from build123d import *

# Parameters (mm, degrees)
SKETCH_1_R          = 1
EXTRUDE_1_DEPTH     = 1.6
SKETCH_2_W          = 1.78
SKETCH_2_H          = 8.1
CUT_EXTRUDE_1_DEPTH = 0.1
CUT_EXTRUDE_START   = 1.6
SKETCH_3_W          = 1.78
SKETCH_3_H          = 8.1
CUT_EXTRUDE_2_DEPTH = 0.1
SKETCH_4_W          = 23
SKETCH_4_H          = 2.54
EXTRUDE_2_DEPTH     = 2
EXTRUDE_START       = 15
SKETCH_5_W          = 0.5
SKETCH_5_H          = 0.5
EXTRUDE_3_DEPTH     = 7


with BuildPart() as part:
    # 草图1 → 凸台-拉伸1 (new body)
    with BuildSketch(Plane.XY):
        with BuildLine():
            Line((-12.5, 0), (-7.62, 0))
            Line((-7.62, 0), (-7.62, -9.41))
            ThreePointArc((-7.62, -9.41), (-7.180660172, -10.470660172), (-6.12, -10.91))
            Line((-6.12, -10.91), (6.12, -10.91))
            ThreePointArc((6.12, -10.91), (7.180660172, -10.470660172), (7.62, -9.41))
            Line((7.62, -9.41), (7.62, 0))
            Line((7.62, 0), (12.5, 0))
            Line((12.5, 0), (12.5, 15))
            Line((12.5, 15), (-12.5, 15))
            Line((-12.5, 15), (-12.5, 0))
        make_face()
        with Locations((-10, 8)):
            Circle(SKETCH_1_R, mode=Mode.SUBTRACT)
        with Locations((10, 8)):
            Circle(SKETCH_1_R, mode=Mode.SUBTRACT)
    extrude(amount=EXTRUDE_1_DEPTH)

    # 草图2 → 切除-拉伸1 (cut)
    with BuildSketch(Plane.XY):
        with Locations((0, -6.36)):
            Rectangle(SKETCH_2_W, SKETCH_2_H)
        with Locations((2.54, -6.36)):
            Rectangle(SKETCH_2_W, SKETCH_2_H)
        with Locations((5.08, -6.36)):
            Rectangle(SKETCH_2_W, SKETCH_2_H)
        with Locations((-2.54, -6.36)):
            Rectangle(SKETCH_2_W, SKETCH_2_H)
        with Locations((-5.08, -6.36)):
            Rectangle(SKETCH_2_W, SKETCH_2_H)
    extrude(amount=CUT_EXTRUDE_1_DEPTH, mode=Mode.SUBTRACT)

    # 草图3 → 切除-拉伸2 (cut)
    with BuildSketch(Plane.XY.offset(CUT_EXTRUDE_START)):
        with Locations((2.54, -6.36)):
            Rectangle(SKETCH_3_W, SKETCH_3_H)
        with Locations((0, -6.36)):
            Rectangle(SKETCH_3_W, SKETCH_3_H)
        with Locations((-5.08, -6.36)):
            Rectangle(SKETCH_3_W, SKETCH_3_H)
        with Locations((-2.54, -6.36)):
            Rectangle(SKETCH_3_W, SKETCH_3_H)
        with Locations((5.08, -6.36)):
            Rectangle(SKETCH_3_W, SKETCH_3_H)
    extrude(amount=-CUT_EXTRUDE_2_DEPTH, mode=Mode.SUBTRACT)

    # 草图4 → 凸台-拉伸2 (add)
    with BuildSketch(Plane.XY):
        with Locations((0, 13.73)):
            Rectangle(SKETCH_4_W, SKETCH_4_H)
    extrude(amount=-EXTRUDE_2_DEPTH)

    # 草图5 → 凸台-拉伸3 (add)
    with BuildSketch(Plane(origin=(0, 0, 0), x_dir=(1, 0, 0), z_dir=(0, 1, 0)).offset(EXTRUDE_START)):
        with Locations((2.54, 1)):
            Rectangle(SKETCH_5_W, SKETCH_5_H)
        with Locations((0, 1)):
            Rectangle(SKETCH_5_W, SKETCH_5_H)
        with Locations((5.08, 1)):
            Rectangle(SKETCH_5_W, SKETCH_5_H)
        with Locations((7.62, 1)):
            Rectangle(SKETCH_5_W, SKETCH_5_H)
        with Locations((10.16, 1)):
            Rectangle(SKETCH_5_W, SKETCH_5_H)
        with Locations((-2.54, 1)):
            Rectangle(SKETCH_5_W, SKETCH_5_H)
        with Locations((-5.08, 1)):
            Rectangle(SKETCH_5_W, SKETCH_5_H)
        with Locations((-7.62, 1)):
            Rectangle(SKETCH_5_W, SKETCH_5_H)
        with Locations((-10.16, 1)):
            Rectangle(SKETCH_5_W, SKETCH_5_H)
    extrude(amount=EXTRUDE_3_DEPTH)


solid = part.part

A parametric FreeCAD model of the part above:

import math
import FreeCAD as App
import Part
import Sketcher
from FreeCAD import Vector


def add_polygon(sketch, points):
    """Adds a closed chain of lines whose ends are joined by coincident constraints."""
    first, n = sketch.GeometryCount, len(points)
    for a, b in zip(points, points[1:] + points[:1]):
        sketch.addGeometry(Part.LineSegment(App.Vector(*a, 0), App.Vector(*b, 0)), False)
    for i in range(n):
        sketch.addConstraint(Sketcher.Constraint("Coincident", first + i, 2, first + (i + 1) % n, 1))

doc = App.newDocument("Part")
body = doc.addObject("PartDesign::Body", "Body")

# Sketch on XY plane
sketch1 = doc.addObject("Sketcher::SketchObject", "Sketch")
body.addObject(sketch1)
sketch1.AttachmentSupport = (doc.XY_Plane, [""])
sketch1.MapMode = "FlatFace"
sketch1.addGeometry([
    Part.LineSegment(Vector(-12.5, 0, 0), Vector(-7.6, 0, 0)),  # 0
    Part.LineSegment(Vector(-7.6, 0, 0), Vector(-7.6, -9.4, 0)),  # 1
    Part.ArcOfCircle(Part.Circle(Vector(-6.1, -9.4, 0), Vector(0, 0, 1), 1.5), math.radians(180), math.radians(270)),  # 2
    Part.LineSegment(Vector(-6.1, -10.9, 0), Vector(6.1, -10.9, 0)),  # 3
    Part.ArcOfCircle(Part.Circle(Vector(6.1, -9.4, 0), Vector(0, 0, 1), 1.5), math.radians(-90), math.radians(0)),  # 4
    Part.LineSegment(Vector(7.6, -9.4, 0), Vector(7.6, 0, 0)),  # 5
    Part.LineSegment(Vector(7.6, 0, 0), Vector(12.5, 0, 0)),  # 6
    Part.LineSegment(Vector(12.5, 0, 0), Vector(12.5, 15, 0)),  # 7
    Part.LineSegment(Vector(12.5, 15, 0), Vector(-12.5, 15, 0)),  # 8
    Part.LineSegment(Vector(-12.5, 15, 0), Vector(-12.5, 0, 0)),  # 9
    Part.Circle(Vector(-10, 8, 0), Vector(0, 0, 1), 1),  # 10
    Part.Circle(Vector(10, 8, 0), Vector(0, 0, 1), 1),  # 11
], False)
sketch1.addConstraint([
    Sketcher.Constraint("Coincident", 0, 2, 1, 1),
    Sketcher.Constraint("Tangent", 1, 2, 2, 1),
    Sketcher.Constraint("Tangent", 2, 2, 3, 1),
    Sketcher.Constraint("Tangent", 3, 2, 4, 1),
    Sketcher.Constraint("Tangent", 4, 2, 5, 1),
    Sketcher.Constraint("Coincident", 5, 2, 6, 1),
    Sketcher.Constraint("Coincident", 6, 2, 7, 1),
    Sketcher.Constraint("Coincident", 7, 2, 8, 1),
    Sketcher.Constraint("Coincident", 8, 2, 9, 1),
    Sketcher.Constraint("Coincident", 9, 2, 0, 1),
    Sketcher.Constraint("Horizontal", 0),
    Sketcher.Constraint("Vertical", 1),
    Sketcher.Constraint("Horizontal", 3),
    Sketcher.Constraint("Vertical", 5),
    Sketcher.Constraint("Horizontal", 6),
    Sketcher.Constraint("Vertical", 7),
    Sketcher.Constraint("Horizontal", 8),
    Sketcher.Constraint("Vertical", 9),
    Sketcher.Constraint("Equal", 2, 4),
    Sketcher.Constraint("Equal", 10, 11),
    Sketcher.Constraint("Symmetric", 0, 2, 5, 2, -1, 1),
    Sketcher.Constraint("Symmetric", 10, 3, 11, 3, -2),
    Sketcher.Constraint("Symmetric", 6, 2, 9, 2, -2),
    Sketcher.Constraint("Diameter", 10, 2.0),
    Sketcher.Constraint("Radius", 2, 1.5),
    Sketcher.Constraint("DistanceX", 8, 2, 8, 1, 25.0),
    Sketcher.Constraint("DistanceY", 7, 1, 7, 2, 15.0),
    Sketcher.Constraint("DistanceX", 10, 3, -1, 1, 10.0),
    Sketcher.Constraint("DistanceY", -1, 1, 10, 3, 8.0),
    Sketcher.Constraint("DistanceX", 0, 1, 0, 2, 4.88),
    Sketcher.Constraint("DistanceY", 1, 2, 1, 1, 9.41),
])
pad1 = doc.addObject("PartDesign::Pad", "Pad")
body.addObject(pad1)
pad1.Profile = sketch1
pad1.Length = 1.6

# Sketch on XY plane
sketch2 = doc.addObject("Sketcher::SketchObject", "Sketch001")
body.addObject(sketch2)
sketch2.AttachmentSupport = (doc.XY_Plane, [""])
sketch2.MapMode = "FlatFace"
add_polygon(sketch2, [(-0.9, -2.3), (-0.9, -10.4), (0.9, -10.4), (0.9, -2.3)])  # lines 0-3
add_polygon(sketch2, [(1.6, -2.3), (1.6, -10.4), (3.4, -10.4), (3.4, -2.3)])  # lines 4-7
add_polygon(sketch2, [(4.2, -2.3), (4.2, -10.4), (6, -10.4), (6, -2.3)])  # lines 8-11
add_polygon(sketch2, [(-3.4, -2.3), (-3.4, -10.4), (-1.6, -10.4), (-1.6, -2.3)])  # lines 12-15
add_polygon(sketch2, [(-6, -2.3), (-6, -10.4), (-4.2, -10.4), (-4.2, -2.3)])  # lines 16-19
sketch2.addConstraint([
    Sketcher.Constraint("Vertical", 0),
    Sketcher.Constraint("Horizontal", 1),
    Sketcher.Constraint("Vertical", 2),
    Sketcher.Constraint("Horizontal", 3),
    Sketcher.Constraint("Vertical", 4),
    Sketcher.Constraint("Horizontal", 5),
    Sketcher.Constraint("Vertical", 6),
    Sketcher.Constraint("Horizontal", 7),
    Sketcher.Constraint("Vertical", 8),
    Sketcher.Constraint("Horizontal", 9),
    Sketcher.Constraint("Vertical", 10),
    Sketcher.Constraint("Horizontal", 11),
    Sketcher.Constraint("Vertical", 12),
    Sketcher.Constraint("Horizontal", 13),
    Sketcher.Constraint("Vertical", 14),
    Sketcher.Constraint("Horizontal", 15),
    Sketcher.Constraint("Vertical", 16),
    Sketcher.Constraint("Horizontal", 17),
    Sketcher.Constraint("Vertical", 18),
    Sketcher.Constraint("Horizontal", 19),
    Sketcher.Constraint("Symmetric", 5, 2, 12, 2, -2),
    Sketcher.Constraint("Symmetric", 7, 2, 14, 2, -2),
    Sketcher.Constraint("Symmetric", 9, 2, 16, 2, -2),
    Sketcher.Constraint("Symmetric", 11, 2, 18, 2, -2),
    Sketcher.Constraint("Horizontal", 1, 2, 4, 2),
    Sketcher.Constraint("Horizontal", 3, 2, 6, 2),
    Sketcher.Constraint("Horizontal", 5, 2, 8, 2),
    Sketcher.Constraint("Horizontal", 7, 2, 10, 2),
    Sketcher.Constraint("Equal", 3, 5),
    Sketcher.Constraint("Equal", 7, 9),
    Sketcher.Constraint("DistanceY", 0, 2, 0, 1, 8.1),
    Sketcher.Constraint("DistanceX", 1, 1, 1, 2, 1.78),
    Sketcher.Constraint("DistanceX", 1, 2, 8, 2, 3.3),
    Sketcher.Constraint("DistanceX", 13, 2, 4, 2, 3.3),
    Sketcher.Constraint("DistanceX", 17, 2, 0, 2, 3.3),
    Sketcher.Constraint("DistanceY", 0, 2, -1, 1, 10.41),
])
pocket1 = doc.addObject("PartDesign::Pocket", "Pocket")
body.addObject(pocket1)
pocket1.Profile = sketch2
pocket1.Length = 0.1
pocket1.Reversed = True

# Sketch on XY plane
sketch3 = doc.addObject("Sketcher::SketchObject", "Sketch002")
body.addObject(sketch3)
sketch3.AttachmentSupport = (doc.XY_Plane, [""])
sketch3.MapMode = "FlatFace"
sketch3.AttachmentOffset = App.Placement(Vector(0, 0, 1.6), App.Rotation())
add_polygon(sketch3, [(1.6, -2.3), (1.6, -10.4), (3.4, -10.4), (3.4, -2.3)])  # lines 0-3
add_polygon(sketch3, [(-0.9, -2.3), (-0.9, -10.4), (0.9, -10.4), (0.9, -2.3)])  # lines 4-7
add_polygon(sketch3, [(-6, -2.3), (-6, -10.4), (-4.2, -10.4), (-4.2, -2.3)])  # lines 8-11
add_polygon(sketch3, [(-3.4, -2.3), (-3.4, -10.4), (-1.6, -10.4), (-1.6, -2.3)])  # lines 12-15
add_polygon(sketch3, [(4.2, -2.3), (4.2, -10.4), (6, -10.4), (6, -2.3)])  # lines 16-19
sketch3.addConstraint([
    Sketcher.Constraint("Vertical", 0),
    Sketcher.Constraint("Horizontal", 1),
    Sketcher.Constraint("Vertical", 2),
    Sketcher.Constraint("Horizontal", 3),
    Sketcher.Constraint("Vertical", 4),
    Sketcher.Constraint("Horizontal", 5),
    Sketcher.Constraint("Vertical", 6),
    Sketcher.Constraint("Horizontal", 7),
    Sketcher.Constraint("Vertical", 8),
    Sketcher.Constraint("Horizontal", 9),
    Sketcher.Constraint("Vertical", 10),
    Sketcher.Constraint("Horizontal", 11),
    Sketcher.Constraint("Vertical", 12),
    Sketcher.Constraint("Horizontal", 13),
    Sketcher.Constraint("Vertical", 14),
    Sketcher.Constraint("Horizontal", 15),
    Sketcher.Constraint("Vertical", 16),
    Sketcher.Constraint("Horizontal", 17),
    Sketcher.Constraint("Vertical", 18),
    Sketcher.Constraint("Horizontal", 19),
    Sketcher.Constraint("Symmetric", 1, 2, 12, 2, -2),
    Sketcher.Constraint("Symmetric", 3, 2, 14, 2, -2),
    Sketcher.Constraint("Symmetric", 9, 2, 16, 2, -2),
    Sketcher.Constraint("Symmetric", 11, 2, 18, 2, -2),
    Sketcher.Constraint("Horizontal", 1, 2, 4, 2),
    Sketcher.Constraint("Horizontal", 3, 2, 6, 2),
    Sketcher.Constraint("Horizontal", 5, 2, 8, 2),
    Sketcher.Constraint("Horizontal", 7, 2, 10, 2),
    Sketcher.Constraint("Equal", 3, 5),
    Sketcher.Constraint("Equal", 7, 9),
    Sketcher.Constraint("DistanceY", 0, 2, 0, 1, 8.1),
    Sketcher.Constraint("DistanceX", 1, 1, 1, 2, 1.78),
    Sketcher.Constraint("DistanceX", 8, 2, 1, 2, 9.4),
    Sketcher.Constraint("DistanceX", 9, 2, 4, 2, 3.3),
    Sketcher.Constraint("DistanceX", 13, 2, 0, 2, 3.3),
    Sketcher.Constraint("DistanceY", 0, 2, -1, 1, 10.41),
])
pocket2 = doc.addObject("PartDesign::Pocket", "Pocket001")
body.addObject(pocket2)
pocket2.Profile = sketch3
pocket2.Length = 0.1

# Sketch on XY plane
sketch4 = doc.addObject("Sketcher::SketchObject", "Sketch003")
body.addObject(sketch4)
sketch4.AttachmentSupport = (doc.XY_Plane, [""])
sketch4.MapMode = "FlatFace"
add_polygon(sketch4, [(-11.5, 15), (-11.5, 12.5), (11.5, 12.5), (11.5, 15)])  # lines 0-3
sketch4.addConstraint([
    Sketcher.Constraint("Vertical", 0),
    Sketcher.Constraint("Horizontal", 1),
    Sketcher.Constraint("Vertical", 2),
    Sketcher.Constraint("Horizontal", 3),
    Sketcher.Constraint("DistanceX", 1, 1, 1, 2, 23.0),
    Sketcher.Constraint("DistanceY", -1, 1, 2, 2, 15.0),
    Sketcher.Constraint("DistanceY", 0, 2, 0, 1, 2.54),
    Sketcher.Constraint("DistanceX", 0, 2, -1, 1, 11.5),
])
pad2 = doc.addObject("PartDesign::Pad", "Pad001")
body.addObject(pad2)
pad2.Profile = sketch4
pad2.Length = 2
pad2.Reversed = True

# Sketch on XZ plane
sketch5 = doc.addObject("Sketcher::SketchObject", "Sketch004")
body.addObject(sketch5)
sketch5.AttachmentSupport = (doc.XZ_Plane, [""])
sketch5.MapMode = "FlatFace"
sketch5.AttachmentOffset = App.Placement(Vector(0, 0, -15), App.Rotation())
add_polygon(sketch5, [(2.3, -1.2), (2.3, -0.8), (2.8, -0.8), (2.8, -1.2)])  # lines 0-3
add_polygon(sketch5, [(-0.2, -1.2), (-0.2, -0.8), (0.2, -0.8), (0.2, -1.2)])  # lines 4-7
add_polygon(sketch5, [(4.8, -1.2), (4.8, -0.8), (5.3, -0.8), (5.3, -1.2)])  # lines 8-11
add_polygon(sketch5, [(7.4, -1.2), (7.4, -0.8), (7.9, -0.8), (7.9, -1.2)])  # lines 12-15
add_polygon(sketch5, [(9.9, -1.2), (9.9, -0.8), (10.4, -0.8), (10.4, -1.2)])  # lines 16-19
add_polygon(sketch5, [(-2.8, -1.2), (-2.8, -0.8), (-2.3, -0.8), (-2.3, -1.2)])  # lines 20-23
add_polygon(sketch5, [(-5.3, -1.2), (-5.3, -0.8), (-4.8, -0.8), (-4.8, -1.2)])  # lines 24-27
add_polygon(sketch5, [(-7.9, -1.2), (-7.9, -0.8), (-7.4, -0.8), (-7.4, -1.2)])  # lines 28-31
add_polygon(sketch5, [(-10.4, -1.2), (-10.4, -0.8), (-9.9, -0.8), (-9.9, -1.2)])  # lines 32-35
sketch5.addConstraint([
    Sketcher.Constraint("Vertical", 0),
    Sketcher.Constraint("Horizontal", 1),
    Sketcher.Constraint("Vertical", 2),
    Sketcher.Constraint("Horizontal", 3),
    Sketcher.Constraint("Vertical", 4),
    Sketcher.Constraint("Horizontal", 5),
    Sketcher.Constraint("Vertical", 6),
    Sketcher.Constraint("Horizontal", 7),
    Sketcher.Constraint("Vertical", 8),
    Sketcher.Constraint("Horizontal", 9),
    Sketcher.Constraint("Vertical", 10),
    Sketcher.Constraint("Horizontal", 11),
    Sketcher.Constraint("Vertical", 12),
    Sketcher.Constraint("Horizontal", 13),
    Sketcher.Constraint("Vertical", 14),
    Sketcher.Constraint("Horizontal", 15),
    Sketcher.Constraint("Vertical", 16),
    Sketcher.Constraint("Horizontal", 17),
    Sketcher.Constraint("Vertical", 18),
    Sketcher.Constraint("Horizontal", 19),
    Sketcher.Constraint("Vertical", 20),
    Sketcher.Constraint("Horizontal", 21),
    Sketcher.Constraint("Vertical", 22),
    Sketcher.Constraint("Horizontal", 23),
    Sketcher.Constraint("Vertical", 24),
    Sketcher.Constraint("Horizontal", 25),
    Sketcher.Constraint("Vertical", 26),
    Sketcher.Constraint("Horizontal", 27),
    Sketcher.Constraint("Vertical", 28),
    Sketcher.Constraint("Horizontal", 29),
    Sketcher.Constraint("Vertical", 30),
    Sketcher.Constraint("Horizontal", 31),
    Sketcher.Constraint("Vertical", 32),
    Sketcher.Constraint("Horizontal", 33),
    Sketcher.Constraint("Vertical", 34),
    Sketcher.Constraint("Horizontal", 35),
    Sketcher.Constraint("Symmetric", 1, 2, 20, 2, -2),
    Sketcher.Constraint("Symmetric", 3, 2, 22, 2, -2),
    Sketcher.Constraint("Symmetric", 9, 2, 24, 2, -2),
    Sketcher.Constraint("Symmetric", 11, 2, 26, 2, -2),
    Sketcher.Constraint("Symmetric", 13, 2, 28, 2, -2),
    Sketcher.Constraint("Symmetric", 15, 2, 30, 2, -2),
    Sketcher.Constraint("Symmetric", 17, 2, 32, 2, -2),
    Sketcher.Constraint("Symmetric", 19, 2, 34, 2, -2),
    Sketcher.Constraint("Horizontal", 1, 2, 4, 2),
    Sketcher.Constraint("Horizontal", 3, 2, 6, 2),
    Sketcher.Constraint("Horizontal", 5, 2, 8, 2),
    Sketcher.Constraint("Horizontal", 7, 2, 10, 2),
    Sketcher.Constraint("Horizontal", 9, 2, 12, 2),
    Sketcher.Constraint("Horizontal", 11, 2, 14, 2),
    Sketcher.Constraint("Horizontal", 13, 2, 16, 2),
    Sketcher.Constraint("Horizontal", 15, 2, 18, 2),
    Sketcher.Constraint("Equal", 3, 5),
    Sketcher.Constraint("Equal", 7, 9),
    Sketcher.Constraint("Equal", 11, 13),
    Sketcher.Constraint("Equal", 15, 17),
    Sketcher.Constraint("Equal", 35, 0),
    Sketcher.Constraint("DistanceX", 1, 1, 1, 2, 0.5),
    Sketcher.Constraint("DistanceX", -1, 1, 0, 2, 2.29),
    Sketcher.Constraint("DistanceY", 0, 2, -1, 1, 0.75),
    Sketcher.Constraint("DistanceX", 4, 2, -1, 1, 0.25),
    Sketcher.Constraint("DistanceX", -1, 1, 8, 2, 4.83),
    Sketcher.Constraint("DistanceX", -1, 1, 12, 2, 7.37),
    Sketcher.Constraint("DistanceX", -1, 1, 16, 2, 9.91),
])
pad3 = doc.addObject("PartDesign::Pad", "Pad002")
body.addObject(pad3)
pad3.Profile = sketch5
pad3.Length = 7
pad3.Reversed = True

doc.recompute()
